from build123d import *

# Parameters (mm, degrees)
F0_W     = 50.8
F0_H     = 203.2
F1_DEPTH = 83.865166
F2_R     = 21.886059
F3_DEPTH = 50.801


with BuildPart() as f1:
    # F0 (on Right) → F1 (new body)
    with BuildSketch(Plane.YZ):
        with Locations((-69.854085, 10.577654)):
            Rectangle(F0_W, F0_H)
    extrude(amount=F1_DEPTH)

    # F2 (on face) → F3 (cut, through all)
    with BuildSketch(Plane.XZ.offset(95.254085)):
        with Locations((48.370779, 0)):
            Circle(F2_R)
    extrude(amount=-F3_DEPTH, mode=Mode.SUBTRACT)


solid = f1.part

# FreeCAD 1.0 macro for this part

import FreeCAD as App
import Part
import Sketcher

V = App.Vector
Q = App.Units.Quantity


def add_polygon(sketch, points):
    """Adds a closed chain of lines whose ends are joined by coincident constraints."""
    first, n = sketch.GeometryCount, len(points)
    for a, b in zip(points, points[1:] + points[:1]):
        sketch.addGeometry(Part.LineSegment(App.Vector(*a, 0), App.Vector(*b, 0)), False)
    for i in range(n):
        sketch.addConstraint(Sketcher.Constraint("Coincident", first + i, 2, first + (i + 1) % n, 1))

doc = App.newDocument("Part")
params = doc.addObject("Spreadsheet::Sheet", "Params")
for row, (alias, value) in enumerate([
    ("sketch1_width", "2 in"),
    ("sketch1_height", "8 in"),
    ("pad1_length", "83.865166 mm"),
], start=1):
    params.set(f"A{row}", alias)
    params.set(f"B{row}", "=" + value)
    params.setAlias(f"B{row}", alias)

body = doc.addObject("PartDesign::Body", "Body")

sketch1 = body.newObject("Sketcher::SketchObject", "Sketch")
sketch1.AttachmentSupport = (doc.getObject("YZ_Plane"), [""])
sketch1.MapMode = "FlatFace"
add_polygon(sketch1, [(-95.254085, 112.177654), (-95.254085, -91.022346), (-44.454085, -91.022346), (-44.454085, 112.177654)])
sketch1.addConstraint([
    Sketcher.Constraint("Vertical", 0),
    Sketcher.Constraint("Horizontal", 1),
    Sketcher.Constraint("Vertical", 2),
    Sketcher.Constraint("Horizontal", 3),
    Sketcher.Constraint("DistanceX", 1, 1, 1, 2, Q("2 in")),
    Sketcher.Constraint("DistanceY", 0, 2, 0, 1, Q("8 in")),
    Sketcher.Constraint("DistanceX", 0, 2, -1, 1, 95.254085),
    Sketcher.Constraint("DistanceY", 0, 2, -1, 1, 91.022346),
])
sketch1.setExpression("Constraints[8]", "Params.sketch1_width")
sketch1.setExpression("Constraints[9]", "Params.sketch1_height")
pad1 = body.newObject("PartDesign::Pad", "Pad")
pad1.Profile = sketch1
pad1.setExpression("Length", "Params.pad1_length")

sketch2 = body.newObject("Sketcher::SketchObject", "Sketch001")
sketch2.AttachmentSupport = (doc.getObject("XZ_Plane"), [""])
sketch2.MapMode = "FlatFace"
sketch2.AttachmentOffset = App.Placement(V(0, 0, 95.254085), App.Rotation())
sketch2.addGeometry(Part.Circle(V(48.370779, 0, 0), V(0, 0, 1), 21.886059), False)
sketch2.addConstraint([
    Sketcher.Constraint("PointOnObject", 0, 3, -1),
    Sketcher.Constraint("Diameter", 0, 43.772118),
    Sketcher.Constraint("DistanceX", -1, 1, 0, 3, 48.370779),
])
pocket1 = body.newObject("PartDesign::Pocket", "Pocket")
pocket1.Profile = sketch2
pocket1.Type = "ThroughAll"

doc.recompute()
